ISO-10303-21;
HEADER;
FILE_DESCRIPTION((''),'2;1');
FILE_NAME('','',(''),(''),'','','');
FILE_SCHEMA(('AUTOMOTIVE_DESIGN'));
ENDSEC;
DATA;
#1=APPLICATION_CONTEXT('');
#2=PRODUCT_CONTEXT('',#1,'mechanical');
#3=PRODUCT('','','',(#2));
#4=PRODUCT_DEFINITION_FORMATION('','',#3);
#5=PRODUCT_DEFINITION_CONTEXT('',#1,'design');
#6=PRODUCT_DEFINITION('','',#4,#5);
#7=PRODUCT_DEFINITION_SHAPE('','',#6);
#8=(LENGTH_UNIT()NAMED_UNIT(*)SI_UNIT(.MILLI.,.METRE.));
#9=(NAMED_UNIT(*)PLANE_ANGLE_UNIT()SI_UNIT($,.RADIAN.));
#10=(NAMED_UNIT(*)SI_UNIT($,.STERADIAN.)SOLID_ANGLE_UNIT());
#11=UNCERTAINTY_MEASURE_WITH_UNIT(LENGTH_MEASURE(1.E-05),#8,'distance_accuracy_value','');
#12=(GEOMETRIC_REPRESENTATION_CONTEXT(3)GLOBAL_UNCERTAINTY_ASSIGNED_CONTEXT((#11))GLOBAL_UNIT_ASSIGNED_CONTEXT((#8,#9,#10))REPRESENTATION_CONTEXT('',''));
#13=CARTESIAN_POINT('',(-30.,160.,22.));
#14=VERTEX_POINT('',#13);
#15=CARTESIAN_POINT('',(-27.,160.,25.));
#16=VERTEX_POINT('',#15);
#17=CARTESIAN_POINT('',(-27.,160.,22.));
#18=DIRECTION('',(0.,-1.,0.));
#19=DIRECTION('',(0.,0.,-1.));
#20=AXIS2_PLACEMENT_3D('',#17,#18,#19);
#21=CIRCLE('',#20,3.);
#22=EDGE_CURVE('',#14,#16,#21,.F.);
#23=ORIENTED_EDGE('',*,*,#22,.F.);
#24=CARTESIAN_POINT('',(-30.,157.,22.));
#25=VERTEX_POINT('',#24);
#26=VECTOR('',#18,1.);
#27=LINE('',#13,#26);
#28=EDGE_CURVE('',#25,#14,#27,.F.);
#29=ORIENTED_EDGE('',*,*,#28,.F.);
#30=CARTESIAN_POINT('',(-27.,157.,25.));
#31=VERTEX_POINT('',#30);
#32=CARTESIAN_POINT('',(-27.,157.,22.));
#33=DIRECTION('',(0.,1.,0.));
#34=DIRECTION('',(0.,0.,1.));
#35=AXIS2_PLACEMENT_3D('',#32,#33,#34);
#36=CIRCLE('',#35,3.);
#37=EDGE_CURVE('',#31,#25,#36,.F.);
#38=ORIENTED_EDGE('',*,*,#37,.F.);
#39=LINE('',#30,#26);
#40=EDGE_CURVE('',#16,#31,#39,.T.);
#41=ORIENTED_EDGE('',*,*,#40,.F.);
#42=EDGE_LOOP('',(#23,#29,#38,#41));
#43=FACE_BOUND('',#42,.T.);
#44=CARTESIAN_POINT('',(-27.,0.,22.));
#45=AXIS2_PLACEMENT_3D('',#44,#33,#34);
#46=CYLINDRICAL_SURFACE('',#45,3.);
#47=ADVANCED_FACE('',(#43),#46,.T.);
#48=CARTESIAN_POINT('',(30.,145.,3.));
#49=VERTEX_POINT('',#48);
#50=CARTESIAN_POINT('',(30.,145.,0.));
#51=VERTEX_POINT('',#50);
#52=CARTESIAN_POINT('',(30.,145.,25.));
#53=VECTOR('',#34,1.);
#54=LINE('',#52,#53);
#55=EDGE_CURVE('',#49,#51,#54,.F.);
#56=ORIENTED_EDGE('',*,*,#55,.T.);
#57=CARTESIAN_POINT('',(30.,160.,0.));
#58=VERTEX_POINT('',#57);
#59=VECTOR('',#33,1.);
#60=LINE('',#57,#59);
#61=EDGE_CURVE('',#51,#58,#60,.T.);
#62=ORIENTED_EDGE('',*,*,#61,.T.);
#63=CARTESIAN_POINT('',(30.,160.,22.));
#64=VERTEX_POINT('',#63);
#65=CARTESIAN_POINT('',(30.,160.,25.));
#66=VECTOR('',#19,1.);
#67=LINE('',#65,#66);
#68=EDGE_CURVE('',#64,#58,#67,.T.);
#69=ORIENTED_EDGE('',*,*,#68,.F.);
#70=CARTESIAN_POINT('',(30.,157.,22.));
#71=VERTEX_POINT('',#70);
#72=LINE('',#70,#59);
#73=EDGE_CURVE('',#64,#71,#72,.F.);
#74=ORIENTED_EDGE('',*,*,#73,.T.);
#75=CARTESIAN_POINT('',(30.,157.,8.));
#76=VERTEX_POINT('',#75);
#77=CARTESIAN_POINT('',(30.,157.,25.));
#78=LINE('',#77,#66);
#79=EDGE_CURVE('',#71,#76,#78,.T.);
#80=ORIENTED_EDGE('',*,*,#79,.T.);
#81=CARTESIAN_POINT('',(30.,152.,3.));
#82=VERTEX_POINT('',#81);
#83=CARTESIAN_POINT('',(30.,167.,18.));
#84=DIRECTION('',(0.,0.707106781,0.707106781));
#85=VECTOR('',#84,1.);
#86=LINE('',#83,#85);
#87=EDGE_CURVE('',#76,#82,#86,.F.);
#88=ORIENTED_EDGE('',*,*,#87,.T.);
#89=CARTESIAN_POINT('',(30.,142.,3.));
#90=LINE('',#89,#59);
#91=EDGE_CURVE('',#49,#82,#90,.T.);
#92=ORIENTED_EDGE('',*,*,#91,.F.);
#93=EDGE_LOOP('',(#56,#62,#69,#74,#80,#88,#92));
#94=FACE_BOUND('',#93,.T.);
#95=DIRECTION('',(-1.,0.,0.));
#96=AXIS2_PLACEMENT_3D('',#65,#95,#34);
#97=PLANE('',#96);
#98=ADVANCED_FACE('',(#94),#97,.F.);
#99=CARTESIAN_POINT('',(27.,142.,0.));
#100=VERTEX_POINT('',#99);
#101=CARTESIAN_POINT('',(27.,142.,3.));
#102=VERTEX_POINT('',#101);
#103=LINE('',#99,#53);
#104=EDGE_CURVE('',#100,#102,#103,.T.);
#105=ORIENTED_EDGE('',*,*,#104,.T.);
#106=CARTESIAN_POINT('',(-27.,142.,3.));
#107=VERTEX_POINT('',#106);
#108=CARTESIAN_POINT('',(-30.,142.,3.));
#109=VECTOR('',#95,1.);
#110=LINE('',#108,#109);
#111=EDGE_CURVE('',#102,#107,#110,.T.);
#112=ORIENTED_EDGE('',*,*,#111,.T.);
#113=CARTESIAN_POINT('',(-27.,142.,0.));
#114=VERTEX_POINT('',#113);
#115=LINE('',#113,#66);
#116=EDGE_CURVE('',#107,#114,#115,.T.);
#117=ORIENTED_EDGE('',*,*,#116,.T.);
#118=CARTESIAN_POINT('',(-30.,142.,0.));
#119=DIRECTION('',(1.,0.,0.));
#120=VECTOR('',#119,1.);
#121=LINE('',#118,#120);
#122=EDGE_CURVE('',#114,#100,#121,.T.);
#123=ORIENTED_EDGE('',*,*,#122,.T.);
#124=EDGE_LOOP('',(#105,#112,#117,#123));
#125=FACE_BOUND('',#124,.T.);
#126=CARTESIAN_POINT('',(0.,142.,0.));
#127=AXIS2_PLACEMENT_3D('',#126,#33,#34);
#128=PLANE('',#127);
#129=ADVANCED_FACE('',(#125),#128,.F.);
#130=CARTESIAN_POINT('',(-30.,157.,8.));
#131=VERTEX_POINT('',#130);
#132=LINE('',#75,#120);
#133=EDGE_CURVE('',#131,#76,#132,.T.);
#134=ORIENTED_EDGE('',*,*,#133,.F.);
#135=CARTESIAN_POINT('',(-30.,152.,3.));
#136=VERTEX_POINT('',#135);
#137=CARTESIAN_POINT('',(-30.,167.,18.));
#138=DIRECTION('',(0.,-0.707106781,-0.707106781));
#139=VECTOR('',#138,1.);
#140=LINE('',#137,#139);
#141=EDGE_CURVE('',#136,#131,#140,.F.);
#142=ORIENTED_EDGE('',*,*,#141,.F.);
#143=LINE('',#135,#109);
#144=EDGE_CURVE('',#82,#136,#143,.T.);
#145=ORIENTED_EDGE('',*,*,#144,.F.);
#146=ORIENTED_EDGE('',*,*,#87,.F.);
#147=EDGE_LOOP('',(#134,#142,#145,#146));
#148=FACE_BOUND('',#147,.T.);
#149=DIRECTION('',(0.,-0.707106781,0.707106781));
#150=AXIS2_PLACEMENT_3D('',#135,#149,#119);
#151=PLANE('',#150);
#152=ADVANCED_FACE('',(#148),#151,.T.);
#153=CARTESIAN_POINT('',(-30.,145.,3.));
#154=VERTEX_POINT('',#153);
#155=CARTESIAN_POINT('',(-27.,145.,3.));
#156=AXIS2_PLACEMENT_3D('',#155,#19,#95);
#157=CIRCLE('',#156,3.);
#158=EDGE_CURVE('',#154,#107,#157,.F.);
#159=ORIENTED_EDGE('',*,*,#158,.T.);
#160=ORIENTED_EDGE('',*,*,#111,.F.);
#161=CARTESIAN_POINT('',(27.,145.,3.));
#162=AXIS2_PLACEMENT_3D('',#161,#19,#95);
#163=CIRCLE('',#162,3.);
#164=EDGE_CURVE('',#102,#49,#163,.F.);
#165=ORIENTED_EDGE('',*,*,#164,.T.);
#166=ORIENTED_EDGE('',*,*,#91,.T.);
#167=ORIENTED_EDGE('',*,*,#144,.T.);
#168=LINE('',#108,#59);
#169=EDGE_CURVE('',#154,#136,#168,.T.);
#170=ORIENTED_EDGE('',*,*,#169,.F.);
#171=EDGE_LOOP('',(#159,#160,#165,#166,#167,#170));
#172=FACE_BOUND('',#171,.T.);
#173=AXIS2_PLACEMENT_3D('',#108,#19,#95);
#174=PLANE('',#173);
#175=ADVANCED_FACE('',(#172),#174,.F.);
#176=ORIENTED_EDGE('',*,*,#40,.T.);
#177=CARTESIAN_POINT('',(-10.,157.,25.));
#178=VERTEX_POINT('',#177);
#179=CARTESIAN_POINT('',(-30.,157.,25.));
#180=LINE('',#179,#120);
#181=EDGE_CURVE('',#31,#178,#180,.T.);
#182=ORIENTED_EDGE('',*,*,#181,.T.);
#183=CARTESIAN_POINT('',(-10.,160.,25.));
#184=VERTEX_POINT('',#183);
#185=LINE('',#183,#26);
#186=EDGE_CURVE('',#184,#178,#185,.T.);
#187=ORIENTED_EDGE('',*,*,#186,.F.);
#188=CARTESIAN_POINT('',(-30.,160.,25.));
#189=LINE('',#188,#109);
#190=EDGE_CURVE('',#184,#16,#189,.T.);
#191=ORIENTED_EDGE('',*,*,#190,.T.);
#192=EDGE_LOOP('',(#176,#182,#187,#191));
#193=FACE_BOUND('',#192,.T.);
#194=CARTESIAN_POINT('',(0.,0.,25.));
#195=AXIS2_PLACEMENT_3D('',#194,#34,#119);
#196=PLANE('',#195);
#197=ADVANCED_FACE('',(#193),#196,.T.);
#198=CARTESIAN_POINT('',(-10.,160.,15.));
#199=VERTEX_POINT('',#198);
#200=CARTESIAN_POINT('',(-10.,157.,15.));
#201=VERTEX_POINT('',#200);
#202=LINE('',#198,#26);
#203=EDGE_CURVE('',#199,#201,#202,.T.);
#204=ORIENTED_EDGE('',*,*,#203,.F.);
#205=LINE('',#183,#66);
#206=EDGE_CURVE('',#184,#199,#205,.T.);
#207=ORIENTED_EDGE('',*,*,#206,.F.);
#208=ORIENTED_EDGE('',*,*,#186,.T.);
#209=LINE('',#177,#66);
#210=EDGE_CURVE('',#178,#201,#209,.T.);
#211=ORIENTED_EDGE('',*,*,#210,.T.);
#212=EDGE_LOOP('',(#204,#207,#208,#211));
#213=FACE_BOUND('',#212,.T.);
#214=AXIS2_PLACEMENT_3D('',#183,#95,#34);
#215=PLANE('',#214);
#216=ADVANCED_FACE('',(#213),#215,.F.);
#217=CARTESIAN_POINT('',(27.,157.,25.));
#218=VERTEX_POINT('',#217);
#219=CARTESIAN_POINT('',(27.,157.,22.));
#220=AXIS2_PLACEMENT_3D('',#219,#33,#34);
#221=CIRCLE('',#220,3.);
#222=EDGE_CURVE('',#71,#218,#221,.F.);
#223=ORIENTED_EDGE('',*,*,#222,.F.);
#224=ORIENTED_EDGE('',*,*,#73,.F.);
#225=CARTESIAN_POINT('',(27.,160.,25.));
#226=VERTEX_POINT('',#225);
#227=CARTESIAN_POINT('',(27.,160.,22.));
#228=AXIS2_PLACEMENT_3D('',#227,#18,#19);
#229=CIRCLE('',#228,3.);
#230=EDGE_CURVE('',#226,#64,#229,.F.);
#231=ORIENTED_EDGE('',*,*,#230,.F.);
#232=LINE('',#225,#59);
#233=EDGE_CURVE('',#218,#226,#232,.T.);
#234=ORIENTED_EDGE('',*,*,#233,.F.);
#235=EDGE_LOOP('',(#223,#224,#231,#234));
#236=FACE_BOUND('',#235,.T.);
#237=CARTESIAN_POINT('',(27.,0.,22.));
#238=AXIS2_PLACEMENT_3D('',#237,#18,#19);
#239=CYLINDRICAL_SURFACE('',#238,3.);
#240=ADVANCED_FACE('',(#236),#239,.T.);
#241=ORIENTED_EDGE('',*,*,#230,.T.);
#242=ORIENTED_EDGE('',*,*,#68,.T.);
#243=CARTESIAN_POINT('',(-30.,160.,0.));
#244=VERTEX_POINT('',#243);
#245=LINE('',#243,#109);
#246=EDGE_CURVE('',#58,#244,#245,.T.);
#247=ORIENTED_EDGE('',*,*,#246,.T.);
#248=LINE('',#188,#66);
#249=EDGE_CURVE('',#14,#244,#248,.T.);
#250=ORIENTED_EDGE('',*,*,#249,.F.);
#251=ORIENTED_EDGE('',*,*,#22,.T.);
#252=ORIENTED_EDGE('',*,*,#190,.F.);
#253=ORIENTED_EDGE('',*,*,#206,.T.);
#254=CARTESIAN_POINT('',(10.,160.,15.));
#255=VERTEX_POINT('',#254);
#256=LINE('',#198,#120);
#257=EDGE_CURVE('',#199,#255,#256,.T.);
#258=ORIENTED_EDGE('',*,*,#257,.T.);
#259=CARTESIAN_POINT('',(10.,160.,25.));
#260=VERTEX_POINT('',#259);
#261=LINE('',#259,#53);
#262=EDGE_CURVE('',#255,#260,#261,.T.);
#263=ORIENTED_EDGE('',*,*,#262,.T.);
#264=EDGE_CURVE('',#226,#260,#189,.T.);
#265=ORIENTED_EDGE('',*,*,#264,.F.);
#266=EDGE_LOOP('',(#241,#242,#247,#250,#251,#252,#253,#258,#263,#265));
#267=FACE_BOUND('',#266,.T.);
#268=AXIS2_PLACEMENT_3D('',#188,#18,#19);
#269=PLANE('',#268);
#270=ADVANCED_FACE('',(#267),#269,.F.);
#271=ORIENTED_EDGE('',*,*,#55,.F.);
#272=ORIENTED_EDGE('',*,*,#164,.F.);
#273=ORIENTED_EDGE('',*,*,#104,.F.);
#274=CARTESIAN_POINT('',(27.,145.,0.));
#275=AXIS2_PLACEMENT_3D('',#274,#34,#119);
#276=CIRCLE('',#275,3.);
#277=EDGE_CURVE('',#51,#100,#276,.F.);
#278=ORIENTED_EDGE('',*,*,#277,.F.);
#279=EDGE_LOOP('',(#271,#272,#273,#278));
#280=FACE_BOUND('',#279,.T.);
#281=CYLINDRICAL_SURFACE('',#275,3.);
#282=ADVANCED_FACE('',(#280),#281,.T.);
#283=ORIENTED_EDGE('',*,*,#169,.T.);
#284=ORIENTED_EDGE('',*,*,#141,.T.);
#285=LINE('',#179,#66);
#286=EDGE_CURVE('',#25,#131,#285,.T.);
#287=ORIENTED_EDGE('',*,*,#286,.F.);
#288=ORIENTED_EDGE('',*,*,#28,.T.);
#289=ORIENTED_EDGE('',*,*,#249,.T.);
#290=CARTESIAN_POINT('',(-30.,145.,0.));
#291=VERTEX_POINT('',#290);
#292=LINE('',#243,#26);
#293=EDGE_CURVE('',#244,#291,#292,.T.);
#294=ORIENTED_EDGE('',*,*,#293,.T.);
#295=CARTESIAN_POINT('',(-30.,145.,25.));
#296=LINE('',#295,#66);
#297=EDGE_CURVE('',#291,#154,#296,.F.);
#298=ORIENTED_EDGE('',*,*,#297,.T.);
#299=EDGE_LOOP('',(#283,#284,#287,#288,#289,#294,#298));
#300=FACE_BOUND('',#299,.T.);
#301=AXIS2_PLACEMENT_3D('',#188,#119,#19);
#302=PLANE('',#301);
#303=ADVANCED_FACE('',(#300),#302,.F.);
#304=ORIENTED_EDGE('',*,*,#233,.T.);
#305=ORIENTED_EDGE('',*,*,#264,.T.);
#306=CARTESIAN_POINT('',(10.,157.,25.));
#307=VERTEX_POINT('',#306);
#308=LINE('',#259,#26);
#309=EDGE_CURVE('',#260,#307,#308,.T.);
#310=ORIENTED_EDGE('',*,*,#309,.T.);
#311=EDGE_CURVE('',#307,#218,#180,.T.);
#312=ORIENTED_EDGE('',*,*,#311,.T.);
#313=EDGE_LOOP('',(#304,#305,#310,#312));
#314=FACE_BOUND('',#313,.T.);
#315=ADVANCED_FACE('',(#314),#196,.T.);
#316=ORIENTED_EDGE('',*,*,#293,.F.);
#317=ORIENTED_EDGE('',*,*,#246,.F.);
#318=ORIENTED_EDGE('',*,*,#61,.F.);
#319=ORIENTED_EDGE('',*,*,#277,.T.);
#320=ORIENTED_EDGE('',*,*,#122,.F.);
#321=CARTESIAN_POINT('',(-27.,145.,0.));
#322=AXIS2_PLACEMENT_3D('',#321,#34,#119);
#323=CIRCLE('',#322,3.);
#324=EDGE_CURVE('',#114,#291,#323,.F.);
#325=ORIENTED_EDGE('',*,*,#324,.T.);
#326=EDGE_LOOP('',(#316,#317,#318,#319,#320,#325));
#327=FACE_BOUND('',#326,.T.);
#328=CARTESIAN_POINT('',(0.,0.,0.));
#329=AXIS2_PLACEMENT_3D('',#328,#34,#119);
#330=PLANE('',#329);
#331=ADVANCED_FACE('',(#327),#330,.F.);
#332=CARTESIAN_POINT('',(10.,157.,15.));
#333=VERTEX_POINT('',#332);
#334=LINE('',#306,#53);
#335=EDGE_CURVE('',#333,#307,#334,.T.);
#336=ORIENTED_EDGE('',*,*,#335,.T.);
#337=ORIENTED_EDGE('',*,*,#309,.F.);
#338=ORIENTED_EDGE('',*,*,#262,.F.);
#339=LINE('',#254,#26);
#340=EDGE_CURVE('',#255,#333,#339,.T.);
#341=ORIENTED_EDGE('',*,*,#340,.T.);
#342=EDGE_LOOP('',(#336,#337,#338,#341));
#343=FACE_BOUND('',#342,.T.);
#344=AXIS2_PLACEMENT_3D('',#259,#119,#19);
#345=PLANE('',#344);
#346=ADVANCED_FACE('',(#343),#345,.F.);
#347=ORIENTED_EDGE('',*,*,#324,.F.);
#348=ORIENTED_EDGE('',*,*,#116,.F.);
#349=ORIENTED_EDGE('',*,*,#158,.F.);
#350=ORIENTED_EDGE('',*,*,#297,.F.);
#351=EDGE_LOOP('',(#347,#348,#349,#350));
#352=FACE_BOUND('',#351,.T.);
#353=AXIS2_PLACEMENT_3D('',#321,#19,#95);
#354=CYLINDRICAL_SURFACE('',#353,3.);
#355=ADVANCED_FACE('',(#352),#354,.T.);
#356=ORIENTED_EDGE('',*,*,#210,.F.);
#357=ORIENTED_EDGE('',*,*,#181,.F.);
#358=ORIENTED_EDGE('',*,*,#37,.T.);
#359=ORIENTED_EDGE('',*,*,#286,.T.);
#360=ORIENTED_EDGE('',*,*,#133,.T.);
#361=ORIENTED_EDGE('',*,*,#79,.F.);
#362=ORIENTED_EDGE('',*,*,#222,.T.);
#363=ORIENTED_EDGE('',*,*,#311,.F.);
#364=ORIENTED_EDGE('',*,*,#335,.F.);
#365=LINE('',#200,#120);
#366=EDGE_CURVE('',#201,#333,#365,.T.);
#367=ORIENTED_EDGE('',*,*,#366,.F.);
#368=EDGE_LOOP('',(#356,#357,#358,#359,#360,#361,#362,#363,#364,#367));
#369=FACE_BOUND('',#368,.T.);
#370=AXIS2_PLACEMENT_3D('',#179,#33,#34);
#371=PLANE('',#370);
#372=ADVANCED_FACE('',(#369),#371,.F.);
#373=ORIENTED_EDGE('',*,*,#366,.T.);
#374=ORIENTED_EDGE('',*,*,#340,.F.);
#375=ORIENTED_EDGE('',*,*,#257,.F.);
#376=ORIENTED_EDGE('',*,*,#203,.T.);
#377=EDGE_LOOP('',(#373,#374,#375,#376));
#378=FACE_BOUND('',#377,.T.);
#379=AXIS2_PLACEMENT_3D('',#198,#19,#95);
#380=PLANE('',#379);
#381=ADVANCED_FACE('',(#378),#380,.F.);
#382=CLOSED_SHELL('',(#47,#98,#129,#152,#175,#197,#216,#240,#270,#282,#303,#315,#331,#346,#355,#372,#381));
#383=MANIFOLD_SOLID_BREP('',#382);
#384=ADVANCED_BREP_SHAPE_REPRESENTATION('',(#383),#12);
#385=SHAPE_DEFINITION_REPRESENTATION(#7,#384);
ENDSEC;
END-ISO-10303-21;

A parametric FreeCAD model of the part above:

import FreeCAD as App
import Part
import Sketcher
from FreeCAD import Vector


def edges_at(feature, points):
    """Names of the edges that pass closest to the given points."""
    edges = feature.Shape.Edges
    near = lambda p: min(range(len(edges)), key=lambda i: edges[i].distToShape(Part.Vertex(*p))[0])
    return sorted({f"Edge{near(p) + 1}" for p in points})


def add_polygon(sketch, points):
    """Adds a closed chain of lines whose ends are joined by coincident constraints."""
    first, n = sketch.GeometryCount, len(points)
    for a, b in zip(points, points[1:] + points[:1]):
        sketch.addGeometry(Part.LineSegment(App.Vector(*a, 0), App.Vector(*b, 0)), False)
    for i in range(n):
        sketch.addConstraint(Sketcher.Constraint("Coincident", first + i, 2, first + (i + 1) % n, 1))

doc = App.newDocument("Part")
body = doc.addObject("PartDesign::Body", "Body")

# Sketch on XY plane
sketch1 = body.newObject("Sketcher::SketchObject", "Sketch")
sketch1.AttachmentSupport = (doc.getObject("XY_Plane"), [""])
sketch1.MapMode = "FlatFace"
add_polygon(sketch1, [(-30, 160), (-30, 157), (30, 157), (30, 160)])  # lines 0-3
sketch1.addConstraint(Sketcher.Constraint("Vertical", 0))
sketch1.addConstraint(Sketcher.Constraint("Horizontal", 1))
sketch1.addConstraint(Sketcher.Constraint("Vertical", 2))
sketch1.addConstraint(Sketcher.Constraint("Horizontal", 3))
sketch1.addConstraint(Sketcher.Constraint("DistanceX", 1, 1, 1, 2, 60.0))
sketch1.addConstraint(Sketcher.Constraint("DistanceY", 0, 2, 0, 1, 3.0))
sketch1.addConstraint(Sketcher.Constraint("DistanceX", 0, 2, -1, 1, 30.0))
sketch1.addConstraint(Sketcher.Constraint("DistanceY", -1, 1, 0, 2, 157.0))
pad1 = body.newObject("PartDesign::Pad", "Pad")
pad1.Profile = sketch1
pad1.Length = 25

# Sketch on XZ plane
sketch2 = body.newObject("Sketcher::SketchObject", "Sketch001")
sketch2.AttachmentSupport = (doc.getObject("XZ_Plane"), [""])
sketch2.MapMode = "FlatFace"
sketch2.AttachmentOffset = App.Placement(Vector(0, 0, -157), App.Rotation())
add_polygon(sketch2, [(-30, 3), (-30, 0), (30, 0), (30, 3)])  # lines 0-3
sketch2.addConstraint(Sketcher.Constraint("Vertical", 0))
sketch2.addConstraint(Sketcher.Constraint("Horizontal", 1))
sketch2.addConstraint(Sketcher.Constraint("Vertical", 2))
sketch2.addConstraint(Sketcher.Constraint("Horizontal", 3))
sketch2.addConstraint(Sketcher.Constraint("Symmetric", 0, 2, 1, 2, -1, 1))
sketch2.addConstraint(Sketcher.Constraint("DistanceX", 1, 1, 1, 2, 60.0))
sketch2.addConstraint(Sketcher.Constraint("DistanceY", 0, 2, 0, 1, 3.0))
pad2 = body.newObject("PartDesign::Pad", "Pad001")
pad2.Profile = sketch2
pad2.Length = 15

# Sketch on XZ plane
sketch3 = body.newObject("Sketcher::SketchObject", "Sketch002")
sketch3.AttachmentSupport = (doc.getObject("XZ_Plane"), [""])
sketch3.MapMode = "FlatFace"
sketch3.AttachmentOffset = App.Placement(Vector(0, 0, -157), App.Rotation())
add_polygon(sketch3, [(-10, 25), (-10, 15), (10, 15), (10, 25)])  # lines 0-3
sketch3.addConstraint(Sketcher.Constraint("Vertical", 0))
sketch3.addConstraint(Sketcher.Constraint("Horizontal", 1))
sketch3.addConstraint(Sketcher.Constraint("Vertical", 2))
sketch3.addConstraint(Sketcher.Constraint("Horizontal", 3))
sketch3.addConstraint(Sketcher.Constraint("DistanceX", 1, 1, 1, 2, 20.0))
sketch3.addConstraint(Sketcher.Constraint("DistanceY", 0, 2, 0, 1, 10.0))
sketch3.addConstraint(Sketcher.Constraint("DistanceX", 0, 2, -1, 1, 10.0))
sketch3.addConstraint(Sketcher.Constraint("DistanceY", -1, 1, 0, 2, 15.0))
pocket1 = body.newObject("PartDesign::Pocket", "Pocket")
pocket1.Profile = sketch3
pocket1.Type = "ThroughAll"
doc.recompute()

fillet = body.newObject("PartDesign::Fillet", "Fillet")
fillet.Base = (pocket1, edges_at(pocket1, [
    (30, 158.5, 25),
    (-30, 142, 1.5),
    (30, 142, 1.5),
    (-30, 158.5, 25),
]))
fillet.Radius = 3
doc.recompute()

chamfer = body.newObject("PartDesign::Chamfer", "Chamfer")
chamfer.Base = (fillet, edges_at(fillet, [(0, 157, 3)]))
chamfer.Size = 5

doc.recompute()
